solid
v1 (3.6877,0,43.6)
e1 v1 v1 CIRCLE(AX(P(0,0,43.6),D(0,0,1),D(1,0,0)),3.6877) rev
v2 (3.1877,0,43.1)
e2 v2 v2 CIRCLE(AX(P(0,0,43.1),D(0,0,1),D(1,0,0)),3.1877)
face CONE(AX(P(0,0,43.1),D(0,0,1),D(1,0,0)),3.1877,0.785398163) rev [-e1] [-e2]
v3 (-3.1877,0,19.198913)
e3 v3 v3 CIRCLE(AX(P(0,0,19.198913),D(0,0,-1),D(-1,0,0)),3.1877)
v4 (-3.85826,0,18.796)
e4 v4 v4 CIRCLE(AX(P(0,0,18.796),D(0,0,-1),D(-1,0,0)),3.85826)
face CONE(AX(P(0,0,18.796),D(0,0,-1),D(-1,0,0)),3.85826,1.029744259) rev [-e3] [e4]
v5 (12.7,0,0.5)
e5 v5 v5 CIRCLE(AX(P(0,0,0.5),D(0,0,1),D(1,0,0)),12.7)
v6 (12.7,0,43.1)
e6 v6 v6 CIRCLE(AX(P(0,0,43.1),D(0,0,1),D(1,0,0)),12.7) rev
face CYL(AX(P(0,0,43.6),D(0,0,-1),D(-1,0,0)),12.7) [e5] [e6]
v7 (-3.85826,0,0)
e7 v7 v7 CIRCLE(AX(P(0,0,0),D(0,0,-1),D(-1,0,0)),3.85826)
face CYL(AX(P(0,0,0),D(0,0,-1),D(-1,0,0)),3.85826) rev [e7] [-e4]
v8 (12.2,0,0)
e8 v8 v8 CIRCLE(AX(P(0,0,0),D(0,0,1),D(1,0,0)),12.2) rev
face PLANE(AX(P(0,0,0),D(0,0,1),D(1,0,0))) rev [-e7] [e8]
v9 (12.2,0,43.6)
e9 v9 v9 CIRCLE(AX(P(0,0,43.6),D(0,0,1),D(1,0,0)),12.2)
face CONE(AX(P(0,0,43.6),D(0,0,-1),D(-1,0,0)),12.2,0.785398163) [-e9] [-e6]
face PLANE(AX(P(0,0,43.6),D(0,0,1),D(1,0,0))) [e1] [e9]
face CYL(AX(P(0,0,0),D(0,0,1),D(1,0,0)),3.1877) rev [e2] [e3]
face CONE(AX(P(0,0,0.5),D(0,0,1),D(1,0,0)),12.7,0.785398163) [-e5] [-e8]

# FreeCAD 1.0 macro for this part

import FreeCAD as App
import Part
import Sketcher
from FreeCAD import Vector
Q = App.Units.Quantity


def edges_at(feature, points):
    """Names of the edges that pass closest to the given points."""
    edges = feature.Shape.Edges
    near = lambda p: min(range(len(edges)), key=lambda i: edges[i].distToShape(Part.Vertex(*p))[0])
    return sorted({f"Edge{near(p) + 1}" for p in points})

doc = App.newDocument("Part")
body = doc.addObject("PartDesign::Body", "Body")

# Sketch on XY plane
sketch1 = doc.addObject("Sketcher::SketchObject", "Sketch")
body.addObject(sketch1)
sketch1.AttachmentSupport = (doc.XY_Plane, [""])
sketch1.MapMode = "FlatFace"
sketch1.addGeometry(Part.Circle(Vector(0, 0, 0), Vector(0, 0, 1), 12.7), False)
sketch1.addConstraint(Sketcher.Constraint("Coincident", 0, 3, -1, 1))
sketch1.addConstraint(Sketcher.Constraint("Diameter", 0, Q("1 in")))
pad1 = doc.addObject("PartDesign::Pad", "Pad")
body.addObject(pad1)
pad1.Profile = sketch1
pad1.Length = 43.6

# Sketch on XY plane
sketch2 = doc.addObject("Sketcher::SketchObject", "Sketch001")
body.addObject(sketch2)
sketch2.AttachmentSupport = (doc.XY_Plane, [""])
sketch2.MapMode = "FlatFace"
sketch2.AttachmentOffset = App.Placement(Vector(0, 0, 43.6), App.Rotation())
sketch2.addGeometry(Part.Circle(Vector(0, 0, 0), Vector(0, 0, 1), 3.1877), False)
sketch2.addConstraint(Sketcher.Constraint("Coincident", 0, 3, -1, 1))
sketch2.addConstraint(Sketcher.Constraint("Diameter", 0, Q("0.251 in")))
pocket1 = doc.addObject("PartDesign::Pocket", "Pocket")
body.addObject(pocket1)
pocket1.Profile = sketch2
pocket1.Type = "ThroughAll"

# Sketch on XY plane
sketch3 = doc.addObject("Sketcher::SketchObject", "Sketch002")
body.addObject(sketch3)
sketch3.AttachmentSupport = (doc.XY_Plane, [""])
sketch3.MapMode = "FlatFace"
sketch3.addGeometry(Part.Circle(Vector(0, 0, 0), Vector(0, 0, 1), 3.85826), False)
sketch3.addConstraint(Sketcher.Constraint("Coincident", 0, 3, -1, 1))
sketch3.addConstraint(Sketcher.Constraint("Diameter", 0, Q("0.3038 in")))
doc.recompute()
hole = doc.addObject("PartDesign::Hole", "Hole")
body.addObject(hole)
hole.Profile = sketch3
hole.ThreadType = "None"
hole.Diameter = Q("0.3038 in")
hole.DepthType = "Dimension"
hole.Depth = Q("0.74 in")
hole.DrillPoint = "Angled"
hole.DrillPointAngle = 118
hole.Reversed = True
doc.recompute()

chamfer = doc.addObject("PartDesign::Chamfer", "Chamfer")
body.addObject(chamfer)
chamfer.Base = (hole, edges_at(hole, [(-12.7, 0, 0), (-12.7, 0, 43.6)]))
chamfer.Size = 0.5
doc.recompute()

chamfer2 = doc.addObject("PartDesign::Chamfer", "Chamfer001")
body.addObject(chamfer2)
chamfer2.Base = (chamfer, edges_at(chamfer, [(-3.188, 0, 43.6)]))
chamfer2.Size = 0.5

doc.recompute()
